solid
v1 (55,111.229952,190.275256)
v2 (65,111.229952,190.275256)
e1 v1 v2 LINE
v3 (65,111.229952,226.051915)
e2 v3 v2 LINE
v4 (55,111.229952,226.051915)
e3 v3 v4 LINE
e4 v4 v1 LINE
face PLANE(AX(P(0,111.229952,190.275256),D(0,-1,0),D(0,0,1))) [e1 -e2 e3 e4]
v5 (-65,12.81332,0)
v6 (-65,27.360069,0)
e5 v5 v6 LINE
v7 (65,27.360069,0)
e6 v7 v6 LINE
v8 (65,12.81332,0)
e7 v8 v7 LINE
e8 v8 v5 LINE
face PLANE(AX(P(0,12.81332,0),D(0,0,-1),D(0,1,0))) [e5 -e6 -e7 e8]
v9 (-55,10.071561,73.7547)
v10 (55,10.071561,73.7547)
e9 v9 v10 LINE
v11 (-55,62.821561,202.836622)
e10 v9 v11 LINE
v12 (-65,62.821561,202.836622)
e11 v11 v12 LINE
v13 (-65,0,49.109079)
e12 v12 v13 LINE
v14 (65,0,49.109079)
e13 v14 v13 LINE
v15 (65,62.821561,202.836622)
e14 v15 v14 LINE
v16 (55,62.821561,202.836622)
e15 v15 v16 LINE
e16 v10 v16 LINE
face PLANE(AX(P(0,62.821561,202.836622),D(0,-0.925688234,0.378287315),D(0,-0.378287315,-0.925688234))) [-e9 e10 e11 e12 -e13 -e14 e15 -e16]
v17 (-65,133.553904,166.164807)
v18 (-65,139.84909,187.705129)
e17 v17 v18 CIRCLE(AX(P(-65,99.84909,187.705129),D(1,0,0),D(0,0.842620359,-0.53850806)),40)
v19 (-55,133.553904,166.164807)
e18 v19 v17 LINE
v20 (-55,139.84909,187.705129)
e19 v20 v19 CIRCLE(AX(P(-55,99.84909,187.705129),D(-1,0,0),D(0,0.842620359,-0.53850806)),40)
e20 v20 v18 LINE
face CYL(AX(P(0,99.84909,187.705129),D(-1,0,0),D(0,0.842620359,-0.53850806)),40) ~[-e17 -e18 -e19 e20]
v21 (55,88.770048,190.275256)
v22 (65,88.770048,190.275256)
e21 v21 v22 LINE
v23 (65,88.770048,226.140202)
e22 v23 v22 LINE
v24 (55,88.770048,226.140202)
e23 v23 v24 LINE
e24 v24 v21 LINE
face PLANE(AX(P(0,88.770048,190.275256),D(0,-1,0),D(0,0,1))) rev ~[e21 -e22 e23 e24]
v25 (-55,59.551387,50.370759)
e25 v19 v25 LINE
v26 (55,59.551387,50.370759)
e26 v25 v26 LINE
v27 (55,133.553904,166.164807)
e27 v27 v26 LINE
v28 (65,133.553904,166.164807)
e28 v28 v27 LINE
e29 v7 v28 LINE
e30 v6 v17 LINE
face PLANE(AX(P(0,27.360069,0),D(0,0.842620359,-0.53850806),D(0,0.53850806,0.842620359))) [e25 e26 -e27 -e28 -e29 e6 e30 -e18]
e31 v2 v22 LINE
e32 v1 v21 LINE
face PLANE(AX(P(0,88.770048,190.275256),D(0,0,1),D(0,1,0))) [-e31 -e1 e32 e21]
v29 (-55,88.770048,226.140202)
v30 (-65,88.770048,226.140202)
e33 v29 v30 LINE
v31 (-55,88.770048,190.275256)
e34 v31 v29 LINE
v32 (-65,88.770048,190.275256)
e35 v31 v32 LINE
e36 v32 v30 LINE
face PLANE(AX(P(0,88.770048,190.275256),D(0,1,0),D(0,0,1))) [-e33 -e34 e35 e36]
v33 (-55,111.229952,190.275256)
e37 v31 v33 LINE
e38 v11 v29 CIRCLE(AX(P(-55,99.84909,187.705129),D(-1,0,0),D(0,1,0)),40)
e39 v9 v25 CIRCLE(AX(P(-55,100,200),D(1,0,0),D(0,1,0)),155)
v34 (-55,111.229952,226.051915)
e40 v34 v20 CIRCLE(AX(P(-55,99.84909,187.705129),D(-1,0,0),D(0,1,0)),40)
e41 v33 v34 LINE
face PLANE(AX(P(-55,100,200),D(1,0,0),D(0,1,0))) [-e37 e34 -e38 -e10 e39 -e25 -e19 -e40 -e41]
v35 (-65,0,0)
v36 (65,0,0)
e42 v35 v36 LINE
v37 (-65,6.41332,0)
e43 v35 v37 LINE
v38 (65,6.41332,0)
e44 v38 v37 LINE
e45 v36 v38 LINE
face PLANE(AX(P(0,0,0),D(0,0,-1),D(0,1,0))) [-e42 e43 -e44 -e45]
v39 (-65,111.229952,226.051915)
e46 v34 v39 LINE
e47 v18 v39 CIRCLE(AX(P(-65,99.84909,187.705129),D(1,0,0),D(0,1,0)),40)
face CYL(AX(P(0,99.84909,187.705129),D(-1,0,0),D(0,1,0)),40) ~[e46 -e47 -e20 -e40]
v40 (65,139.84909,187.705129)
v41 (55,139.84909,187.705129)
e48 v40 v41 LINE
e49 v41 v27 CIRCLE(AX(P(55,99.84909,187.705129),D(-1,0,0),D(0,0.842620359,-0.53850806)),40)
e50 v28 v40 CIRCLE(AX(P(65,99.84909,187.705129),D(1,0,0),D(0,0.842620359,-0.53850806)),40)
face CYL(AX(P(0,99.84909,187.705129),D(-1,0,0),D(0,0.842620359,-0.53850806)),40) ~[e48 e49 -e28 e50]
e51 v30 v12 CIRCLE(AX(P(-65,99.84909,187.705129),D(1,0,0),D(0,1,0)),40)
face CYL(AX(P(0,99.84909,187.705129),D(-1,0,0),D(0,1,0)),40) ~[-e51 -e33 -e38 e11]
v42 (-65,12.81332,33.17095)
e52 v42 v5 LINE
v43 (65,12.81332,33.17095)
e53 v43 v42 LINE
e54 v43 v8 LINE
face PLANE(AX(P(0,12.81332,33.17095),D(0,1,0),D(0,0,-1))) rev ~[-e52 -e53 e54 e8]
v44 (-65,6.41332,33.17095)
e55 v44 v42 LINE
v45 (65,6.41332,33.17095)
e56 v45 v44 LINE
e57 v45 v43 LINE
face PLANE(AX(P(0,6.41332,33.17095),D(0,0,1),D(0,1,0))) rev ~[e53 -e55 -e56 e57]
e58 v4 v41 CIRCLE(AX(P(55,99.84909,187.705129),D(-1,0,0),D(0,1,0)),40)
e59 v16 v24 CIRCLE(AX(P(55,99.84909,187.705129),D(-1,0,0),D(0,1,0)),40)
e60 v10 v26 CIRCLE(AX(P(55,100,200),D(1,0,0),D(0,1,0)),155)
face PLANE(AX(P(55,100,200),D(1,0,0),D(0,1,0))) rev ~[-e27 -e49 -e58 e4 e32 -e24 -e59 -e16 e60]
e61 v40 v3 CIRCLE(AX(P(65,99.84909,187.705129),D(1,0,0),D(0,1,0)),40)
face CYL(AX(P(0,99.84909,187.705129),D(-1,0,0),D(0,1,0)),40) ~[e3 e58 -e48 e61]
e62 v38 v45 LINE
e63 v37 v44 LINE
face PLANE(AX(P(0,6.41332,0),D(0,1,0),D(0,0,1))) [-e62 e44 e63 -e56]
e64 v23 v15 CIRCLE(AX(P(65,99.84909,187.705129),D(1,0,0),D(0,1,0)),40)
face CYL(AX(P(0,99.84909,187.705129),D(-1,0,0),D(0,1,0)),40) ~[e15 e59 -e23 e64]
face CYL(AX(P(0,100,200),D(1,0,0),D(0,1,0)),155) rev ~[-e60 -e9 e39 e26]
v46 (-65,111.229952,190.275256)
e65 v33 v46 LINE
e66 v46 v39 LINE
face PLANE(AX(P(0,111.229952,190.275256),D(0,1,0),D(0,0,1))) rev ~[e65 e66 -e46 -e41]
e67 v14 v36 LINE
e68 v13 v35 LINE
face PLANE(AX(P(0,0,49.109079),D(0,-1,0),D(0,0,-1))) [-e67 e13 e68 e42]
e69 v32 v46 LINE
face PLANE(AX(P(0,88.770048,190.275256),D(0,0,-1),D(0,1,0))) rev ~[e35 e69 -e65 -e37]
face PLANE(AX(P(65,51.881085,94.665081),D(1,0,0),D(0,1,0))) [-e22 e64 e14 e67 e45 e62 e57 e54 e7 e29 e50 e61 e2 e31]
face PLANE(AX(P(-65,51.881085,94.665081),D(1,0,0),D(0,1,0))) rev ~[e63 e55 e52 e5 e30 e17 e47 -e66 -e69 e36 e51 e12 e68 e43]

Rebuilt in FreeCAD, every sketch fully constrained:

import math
import FreeCAD as App
import Part
import Sketcher

V = App.Vector

doc = App.newDocument("Part")
body = doc.addObject("PartDesign::Body", "Body")

# Sketch on YZ plane
sketch1 = body.newObject("Sketcher::SketchObject", "Sketch")
sketch1.AttachmentSupport = (doc.getObject("YZ_Plane"), [""])
sketch1.MapMode = "FlatFace"
sketch1.addGeometry([
    Part.LineSegment(V(0, 49, 0), V(0, 0, 0)),  # 0
    Part.LineSegment(V(0, 0, 0), V(6, 0, 0)),  # 1
    Part.LineSegment(V(6, 0, 0), V(6, 33, 0)),  # 2
    Part.LineSegment(V(6, 33, 0), V(13, 33, 0)),  # 3
    Part.LineSegment(V(13, 33, 0), V(13, 0, 0)),  # 4
    Part.LineSegment(V(13, 0, 0), V(27, 0, 0)),  # 5
    Part.LineSegment(V(27, 0, 0), V(134, 166, 0)),  # 6
    Part.ArcOfCircle(Part.Circle(V(100, 188, 0), V(0, 0, 1), 40), math.radians(-33), math.radians(0)),  # 7
    Part.ArcOfCircle(Part.Circle(V(100, 188, 0), V(0, 0, 1), 40), math.radians(0), math.radians(158)),  # 8
    Part.LineSegment(V(63, 203, 0), V(0, 49, 0)),  # 9
], False)
sketch1.addConstraint([
    Sketcher.Constraint("Coincident", 0, 2, 1, 1),
    Sketcher.Constraint("Coincident", 1, 2, 2, 1),
    Sketcher.Constraint("Coincident", 2, 2, 3, 1),
    Sketcher.Constraint("Coincident", 3, 2, 4, 1),
    Sketcher.Constraint("Coincident", 4, 2, 5, 1),
    Sketcher.Constraint("Coincident", 5, 2, 6, 1),
    Sketcher.Constraint("Tangent", 6, 2, 7, 1),
    Sketcher.Constraint("Tangent", 7, 2, 8, 1),
    Sketcher.Constraint("Tangent", 8, 2, 9, 1),
    Sketcher.Constraint("Coincident", 9, 2, 0, 1),
    Sketcher.Constraint("Vertical", 0),
    Sketcher.Constraint("Horizontal", 1),
    Sketcher.Constraint("Vertical", 2),
    Sketcher.Constraint("Horizontal", 3),
    Sketcher.Constraint("Vertical", 4),
    Sketcher.Constraint("Horizontal", 5),
    Sketcher.Constraint("Coincident", 0, 2, -1, 1),
    Sketcher.Constraint("Equal", 7, 8),
    Sketcher.Constraint("PointOnObject", 4, 2, -1),
    Sketcher.Constraint("Horizontal", 8, 3, 7, 2),
    Sketcher.Constraint("Radius", 7, 40.0),
    Sketcher.Constraint("DistanceX", 3, 1, 3, 2, 6.4),
    Sketcher.Constraint("DistanceX", 1, 1, 1, 2, 6.41332),
    Sketcher.Constraint("DistanceX", 5, 1, 5, 2, 14.546749),
    Sketcher.Constraint("DistanceY", 0, 2, 0, 1, 49.109079),
    Sketcher.Constraint("DistanceY", 2, 1, 2, 2, 33.17095),
    Sketcher.Constraint("DistanceX", -1, 1, 7, 3, 99.84909),
    Sketcher.Constraint("DistanceY", -1, 1, 7, 3, 187.705129),
])
pad1 = body.newObject("PartDesign::Pad", "Pad")
pad1.Profile = sketch1
pad1.Length = 130
pad1.Midplane = True

# Sketch on YZ plane
sketch2 = body.newObject("Sketcher::SketchObject", "Sketch001")
sketch2.AttachmentSupport = (doc.getObject("YZ_Plane"), [""])
sketch2.MapMode = "FlatFace"
sketch2.addGeometry(Part.Circle(V(100, 200, 0), V(0, 0, 1), 155), False)
sketch2.addConstraint([
    Sketcher.Constraint("Diameter", 0, 310.0),
    Sketcher.Constraint("DistanceX", -1, 1, 0, 3, 100.0),
    Sketcher.Constraint("DistanceY", -1, 1, 0, 3, 200.0),
])
pocket1 = body.newObject("PartDesign::Pocket", "Pocket")
pocket1.Profile = sketch2
pocket1.Length = 110
pocket1.Midplane = True

# Sketch on YZ plane
sketch3 = body.newObject("Sketcher::SketchObject", "Sketch002")
sketch3.AttachmentSupport = (doc.getObject("YZ_Plane"), [""])
sketch3.MapMode = "FlatFace"
sketch3.addGeometry([
    Part.LineSegment(V(89, 240, 0), V(89, 190, 0)),
    Part.LineSegment(V(89, 190, 0), V(111, 190, 0)),
    Part.LineSegment(V(111, 190, 0), V(111, 240, 0)),
    Part.LineSegment(V(111, 240, 0), V(89, 240, 0)),
], False)
sketch3.addConstraint([
    Sketcher.Constraint("Coincident", 0, 2, 1, 1),
    Sketcher.Constraint("Coincident", 1, 2, 2, 1),
    Sketcher.Constraint("Coincident", 2, 2, 3, 1),
    Sketcher.Constraint("Coincident", 3, 2, 0, 1),
    Sketcher.Constraint("Vertical", 0),
    Sketcher.Constraint("Horizontal", 1),
    Sketcher.Constraint("Vertical", 2),
    Sketcher.Constraint("Horizontal", 3),
    Sketcher.Constraint("DistanceY", 0, 2, 0, 1, 50.0),
    Sketcher.Constraint("DistanceX", 1, 1, 1, 2, 22.459903),
    Sketcher.Constraint("DistanceX", -1, 1, 0, 2, 88.770048),
    Sketcher.Constraint("DistanceY", -1, 1, 0, 2, 190.275256),
])
pocket2 = body.newObject("PartDesign::Pocket", "Pocket001")
pocket2.Profile = sketch3
pocket2.Type = "ThroughAll"
pocket2.Midplane = True

doc.recompute()
